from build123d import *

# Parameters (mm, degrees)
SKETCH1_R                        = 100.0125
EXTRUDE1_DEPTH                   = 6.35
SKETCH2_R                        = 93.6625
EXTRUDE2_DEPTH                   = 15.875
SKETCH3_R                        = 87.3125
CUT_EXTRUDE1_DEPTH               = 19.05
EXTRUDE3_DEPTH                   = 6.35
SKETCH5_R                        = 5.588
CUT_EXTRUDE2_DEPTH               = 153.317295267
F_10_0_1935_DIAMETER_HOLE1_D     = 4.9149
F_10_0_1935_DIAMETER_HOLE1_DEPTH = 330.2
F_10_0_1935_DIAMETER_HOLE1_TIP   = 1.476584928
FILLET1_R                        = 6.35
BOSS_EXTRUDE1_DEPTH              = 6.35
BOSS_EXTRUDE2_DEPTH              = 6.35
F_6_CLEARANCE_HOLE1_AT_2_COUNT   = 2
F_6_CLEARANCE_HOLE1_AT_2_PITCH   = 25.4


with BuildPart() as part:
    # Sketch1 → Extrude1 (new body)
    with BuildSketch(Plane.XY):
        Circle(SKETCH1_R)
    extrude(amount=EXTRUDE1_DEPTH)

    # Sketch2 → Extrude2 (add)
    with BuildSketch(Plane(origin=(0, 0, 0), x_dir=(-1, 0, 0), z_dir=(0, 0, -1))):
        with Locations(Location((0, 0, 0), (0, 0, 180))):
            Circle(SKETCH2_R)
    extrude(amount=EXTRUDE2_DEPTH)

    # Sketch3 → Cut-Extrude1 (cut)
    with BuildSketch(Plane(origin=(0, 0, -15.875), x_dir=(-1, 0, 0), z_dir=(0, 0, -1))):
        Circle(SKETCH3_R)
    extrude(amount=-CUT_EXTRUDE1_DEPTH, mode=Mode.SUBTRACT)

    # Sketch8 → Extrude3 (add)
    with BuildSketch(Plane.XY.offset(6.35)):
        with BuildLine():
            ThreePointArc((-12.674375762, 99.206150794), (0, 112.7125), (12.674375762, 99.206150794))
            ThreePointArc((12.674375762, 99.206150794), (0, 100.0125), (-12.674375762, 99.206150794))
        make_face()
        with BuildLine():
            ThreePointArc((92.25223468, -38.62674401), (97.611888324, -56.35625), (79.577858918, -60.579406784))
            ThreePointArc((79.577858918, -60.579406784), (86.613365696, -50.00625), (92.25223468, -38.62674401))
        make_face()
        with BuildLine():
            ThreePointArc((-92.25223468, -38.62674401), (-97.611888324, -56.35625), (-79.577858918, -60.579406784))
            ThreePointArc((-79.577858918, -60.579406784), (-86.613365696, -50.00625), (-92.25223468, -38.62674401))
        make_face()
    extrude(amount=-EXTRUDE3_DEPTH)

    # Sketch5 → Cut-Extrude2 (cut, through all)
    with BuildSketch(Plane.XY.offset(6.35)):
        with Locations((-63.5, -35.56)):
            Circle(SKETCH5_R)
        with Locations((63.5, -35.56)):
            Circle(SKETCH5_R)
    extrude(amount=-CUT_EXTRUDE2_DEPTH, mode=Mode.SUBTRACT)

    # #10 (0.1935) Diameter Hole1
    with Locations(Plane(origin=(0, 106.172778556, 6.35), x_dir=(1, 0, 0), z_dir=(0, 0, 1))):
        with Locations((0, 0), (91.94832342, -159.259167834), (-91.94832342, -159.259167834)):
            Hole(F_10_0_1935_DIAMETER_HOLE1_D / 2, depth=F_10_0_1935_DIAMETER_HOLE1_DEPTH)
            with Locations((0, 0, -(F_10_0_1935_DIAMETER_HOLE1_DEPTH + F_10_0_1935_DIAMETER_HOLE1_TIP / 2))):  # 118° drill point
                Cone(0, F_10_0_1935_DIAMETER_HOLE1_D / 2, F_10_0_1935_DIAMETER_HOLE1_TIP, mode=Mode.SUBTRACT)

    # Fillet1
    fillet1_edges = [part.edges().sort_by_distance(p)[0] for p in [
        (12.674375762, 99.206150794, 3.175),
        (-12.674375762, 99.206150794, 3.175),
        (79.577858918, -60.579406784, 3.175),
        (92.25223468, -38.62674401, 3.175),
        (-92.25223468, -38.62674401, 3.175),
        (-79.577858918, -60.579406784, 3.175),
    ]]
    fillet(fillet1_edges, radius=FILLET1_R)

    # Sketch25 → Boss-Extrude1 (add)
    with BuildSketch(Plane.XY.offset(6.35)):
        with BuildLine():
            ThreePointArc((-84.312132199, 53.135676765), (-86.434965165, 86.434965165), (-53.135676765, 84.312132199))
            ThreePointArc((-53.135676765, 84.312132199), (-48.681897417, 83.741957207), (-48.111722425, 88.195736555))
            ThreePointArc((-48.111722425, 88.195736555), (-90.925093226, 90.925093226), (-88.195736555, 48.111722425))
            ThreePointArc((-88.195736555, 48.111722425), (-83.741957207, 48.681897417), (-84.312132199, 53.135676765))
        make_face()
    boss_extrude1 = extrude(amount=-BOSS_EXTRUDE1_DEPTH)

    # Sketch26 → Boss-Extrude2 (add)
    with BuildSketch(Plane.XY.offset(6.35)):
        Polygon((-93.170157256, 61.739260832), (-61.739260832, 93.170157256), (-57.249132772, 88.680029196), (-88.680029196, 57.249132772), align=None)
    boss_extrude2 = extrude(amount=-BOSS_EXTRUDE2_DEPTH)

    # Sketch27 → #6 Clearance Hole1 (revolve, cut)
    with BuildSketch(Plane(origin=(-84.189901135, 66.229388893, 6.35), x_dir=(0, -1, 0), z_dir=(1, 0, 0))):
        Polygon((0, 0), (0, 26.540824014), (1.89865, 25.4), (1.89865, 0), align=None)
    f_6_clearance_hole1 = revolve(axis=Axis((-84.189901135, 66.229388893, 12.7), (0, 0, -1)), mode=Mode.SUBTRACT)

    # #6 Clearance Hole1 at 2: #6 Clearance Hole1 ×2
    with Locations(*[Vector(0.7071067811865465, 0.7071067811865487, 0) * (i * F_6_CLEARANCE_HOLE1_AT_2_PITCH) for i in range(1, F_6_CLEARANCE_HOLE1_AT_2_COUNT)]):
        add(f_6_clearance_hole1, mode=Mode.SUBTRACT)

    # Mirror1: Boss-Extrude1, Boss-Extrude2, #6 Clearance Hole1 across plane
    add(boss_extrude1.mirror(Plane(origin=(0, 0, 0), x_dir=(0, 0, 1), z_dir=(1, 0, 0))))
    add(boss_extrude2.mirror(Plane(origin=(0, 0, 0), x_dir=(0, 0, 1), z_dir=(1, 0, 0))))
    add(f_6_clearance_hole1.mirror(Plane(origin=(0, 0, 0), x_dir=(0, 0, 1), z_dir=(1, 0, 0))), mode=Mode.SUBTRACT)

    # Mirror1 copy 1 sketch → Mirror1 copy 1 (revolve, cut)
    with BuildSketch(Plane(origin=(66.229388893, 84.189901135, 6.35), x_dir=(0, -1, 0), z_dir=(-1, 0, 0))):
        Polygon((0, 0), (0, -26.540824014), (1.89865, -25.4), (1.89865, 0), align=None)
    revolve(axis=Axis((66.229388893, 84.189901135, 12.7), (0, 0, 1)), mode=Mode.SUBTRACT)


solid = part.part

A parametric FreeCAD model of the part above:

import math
import FreeCAD as App
import Part
import Sketcher
Q = App.Units.Quantity


def edges_at(feature, points):
    """Names of the edges that pass closest to the given points."""
    edges = feature.Shape.Edges
    near = lambda p: min(range(len(edges)), key=lambda i: edges[i].distToShape(Part.Vertex(*p))[0])
    return sorted({f"Edge{near(p) + 1}" for p in points})


def add_polygon(sketch, points):
    """Adds a closed chain of lines whose ends are joined by coincident constraints."""
    first, n = sketch.GeometryCount, len(points)
    for a, b in zip(points, points[1:] + points[:1]):
        sketch.addGeometry(Part.LineSegment(App.Vector(*a, 0), App.Vector(*b, 0)), False)
    for i in range(n):
        sketch.addConstraint(Sketcher.Constraint("Coincident", first + i, 2, first + (i + 1) % n, 1))

doc = App.newDocument("Part")
body = doc.addObject("PartDesign::Body", "Body")

sketch1 = body.newObject("Sketcher::SketchObject", "Sketch")
sketch1.AttachmentSupport = (doc.getObject("XY_Plane"), [""])
sketch1.MapMode = "FlatFace"
sketch1.addGeometry(Part.Circle(App.Vector(0, 0, 0), App.Vector(0, 0, 1), 100.0125), False)
sketch1.addConstraint(Sketcher.Constraint("Coincident", 0, 3, -1, 1))
sketch1.addConstraint(Sketcher.Constraint("Diameter", 0, Q("7.875 in")))
pad1 = body.newObject("PartDesign::Pad", "Pad")
pad1.Profile = sketch1
pad1.Length = Q("0.25 in")

sketch2 = body.newObject("Sketcher::SketchObject", "Sketch001")
sketch2.AttachmentSupport = (doc.getObject("XY_Plane"), [""])
sketch2.MapMode = "FlatFace"
sketch2.addGeometry(Part.Circle(App.Vector(0, 0, 0), App.Vector(0, 0, 1), 93.6625), False)
sketch2.addConstraint(Sketcher.Constraint("Coincident", 0, 3, -1, 1))
sketch2.addConstraint(Sketcher.Constraint("Diameter", 0, Q("7.375 in")))
pad2 = body.newObject("PartDesign::Pad", "Pad001")
pad2.Profile = sketch2
pad2.Length = Q("0.625 in")
pad2.Reversed = True

sketch3 = body.newObject("Sketcher::SketchObject", "Sketch002")
sketch3.AttachmentSupport = (doc.getObject("XY_Plane"), [""])
sketch3.MapMode = "FlatFace"
sketch3.AttachmentOffset = App.Placement(App.Vector(0, 0, -0.625 * 25.4), App.Rotation())
sketch3.addGeometry(Part.Circle(App.Vector(0, 0, 0), App.Vector(0, 0, 1), 87.3125), False)
sketch3.addConstraint(Sketcher.Constraint("Coincident", 0, 3, -1, 1))
sketch3.addConstraint(Sketcher.Constraint("Diameter", 0, Q("6.875 in")))
pocket1 = body.newObject("PartDesign::Pocket", "Pocket")
pocket1.Profile = sketch3
pocket1.Length = Q("0.75 in")
pocket1.Reversed = True

sketch4 = body.newObject("Sketcher::SketchObject", "Sketch003")
sketch4.AttachmentSupport = (doc.getObject("XY_Plane"), [""])
sketch4.MapMode = "FlatFace"
sketch4.AttachmentOffset = App.Placement(App.Vector(0, 0, 0.25 * 25.4), App.Rotation())
sketch4.addGeometry(Part.ArcOfCircle(Part.Circle(App.Vector(0, 100.0125, 0), App.Vector(0, 0, 1), 12.7), math.radians(-3.640276), math.radians(183.640276)), False)
sketch4.addGeometry(Part.ArcOfCircle(Part.Circle(App.Vector(0, 0, 0), App.Vector(0, 0, 1), 100.0125), math.radians(82.719448), math.radians(97.280552)), False)
sketch4.addGeometry(Part.ArcOfCircle(Part.Circle(App.Vector(86.613366, -50.00625, 0), App.Vector(0, 0, 1), 12.7), math.radians(-123.640276), math.radians(63.640276)), False)
sketch4.addGeometry(Part.ArcOfCircle(Part.Circle(App.Vector(0, 0, 0), App.Vector(0, 0, 1), 100.0125), math.radians(-37.280552), math.radians(-22.719448)), False)
sketch4.addGeometry(Part.ArcOfCircle(Part.Circle(App.Vector(-86.613366, -50.00625, 0), App.Vector(0, 0, 1), 12.7), math.radians(116.359724), math.radians(303.640276)), False)
sketch4.addGeometry(Part.ArcOfCircle(Part.Circle(App.Vector(0, 0, 0), App.Vector(0, 0, 1), 100.0125), math.radians(-157.280552), math.radians(-142.719448)), False)
sketch4.addConstraint(Sketcher.Constraint("Coincident", 0, 1, 1, 1))
sketch4.addConstraint(Sketcher.Constraint("Coincident", 1, 2, 0, 2))
sketch4.addConstraint(Sketcher.Constraint("Coincident", 2, 1, 3, 1))
sketch4.addConstraint(Sketcher.Constraint("Coincident", 3, 2, 2, 2))
sketch4.addConstraint(Sketcher.Constraint("Coincident", 4, 1, 5, 1))
sketch4.addConstraint(Sketcher.Constraint("Coincident", 5, 2, 4, 2))
sketch4.addConstraint(Sketcher.Constraint("Coincident", 1, 3, -1, 1))
sketch4.addConstraint(Sketcher.Constraint("Coincident", 3, 3, -1, 1))
sketch4.addConstraint(Sketcher.Constraint("Coincident", 5, 3, -1, 1))
sketch4.addConstraint(Sketcher.Constraint("Equal", 0, 2))
sketch4.addConstraint(Sketcher.Constraint("Equal", 1, 3))
sketch4.addConstraint(Sketcher.Constraint("Equal", 2, 4))
sketch4.addConstraint(Sketcher.Constraint("Equal", 3, 5))
sketch4.addConstraint(Sketcher.Constraint("Symmetric", 2, 3, 4, 3, -2))
sketch4.addConstraint(Sketcher.Constraint("PointOnObject", 0, 3, -2))
sketch4.addConstraint(Sketcher.Constraint("Radius", 0, Q("0.5 in")))
sketch4.addConstraint(Sketcher.Constraint("Radius", 1, Q("3.9375 in")))
sketch4.addConstraint(Sketcher.Constraint("DistanceY", -1, 1, 0, 3, Q("3.9375 in")))
sketch4.addConstraint(Sketcher.Constraint("DistanceY", 2, 3, -1, 1, Q("1.96875 in")))
sketch4.addConstraint(Sketcher.Constraint("DistanceX", -1, 1, 2, 1, Q("79.577859 mm")))
pad3 = body.newObject("PartDesign::Pad", "Pad002")
pad3.Profile = sketch4
pad3.Length = Q("0.25 in")
pad3.Reversed = True

sketch5 = body.newObject("Sketcher::SketchObject", "Sketch004")
sketch5.AttachmentSupport = (doc.getObject("XY_Plane"), [""])
sketch5.MapMode = "FlatFace"
sketch5.AttachmentOffset = App.Placement(App.Vector(0, 0, 0.25 * 25.4), App.Rotation())
sketch5.addGeometry(Part.Circle(App.Vector(-63.5, -35.56, 0), App.Vector(0, 0, 1), 5.588), False)
sketch5.addGeometry(Part.Circle(App.Vector(63.5, -35.56, 0), App.Vector(0, 0, 1), 5.588), False)
sketch5.addConstraint(Sketcher.Constraint("Equal", 0, 1))
sketch5.addConstraint(Sketcher.Constraint("Symmetric", 0, 3, 1, 3, -2))
sketch5.addConstraint(Sketcher.Constraint("Diameter", 0, Q("0.44 in")))
sketch5.addConstraint(Sketcher.Constraint("DistanceX", 0, 3, 1, 3, Q("5 in")))
sketch5.addConstraint(Sketcher.Constraint("DistanceY", 0, 3, -1, 1, Q("1.4 in")))
pocket2 = body.newObject("PartDesign::Pocket", "Pocket001")
pocket2.Profile = sketch5
pocket2.Type = "ThroughAll"

sketch6 = body.newObject("Sketcher::SketchObject", "Sketch005")
sketch6.AttachmentSupport = (doc.getObject("XY_Plane"), [""])
sketch6.MapMode = "FlatFace"
sketch6.AttachmentOffset = App.Placement(App.Vector(0, 0, 0.25 * 25.4), App.Rotation())
sketch6.addGeometry(Part.Circle(App.Vector(0, 106.172779, 0), App.Vector(0, 0, 1), 2.45745), False)
sketch6.addGeometry(Part.Circle(App.Vector(91.948323, -53.086389, 0), App.Vector(0, 0, 1), 2.45745), False)
sketch6.addGeometry(Part.Circle(App.Vector(-91.948323, -53.086389, 0), App.Vector(0, 0, 1), 2.45745), False)
sketch6.addConstraint(Sketcher.Constraint("Equal", 0, 1))
sketch6.addConstraint(Sketcher.Constraint("Equal", 1, 2))
sketch6.addConstraint(Sketcher.Constraint("Symmetric", 1, 3, 2, 3, -2))
sketch6.addConstraint(Sketcher.Constraint("PointOnObject", 0, 3, -2))
sketch6.addConstraint(Sketcher.Constraint("Diameter", 0, Q("0.1935 in")))
sketch6.addConstraint(Sketcher.Constraint("DistanceY", -1, 1, 0, 3, Q("106.172779 mm")))
sketch6.addConstraint(Sketcher.Constraint("DistanceY", 1, 3, -1, 1, Q("53.086389 mm")))
sketch6.addConstraint(Sketcher.Constraint("DistanceX", -1, 1, 1, 3, Q("91.948323 mm")))
doc.recompute()
hole = body.newObject("PartDesign::Hole", "Hole")
hole.Profile = sketch6
hole.ThreadType = "None"
hole.Diameter = Q("0.1935 in")
hole.DepthType = "Dimension"
hole.Depth = Q("13 in")
hole.DrillPoint = "Angled"
hole.DrillPointAngle = 118
doc.recompute()

fillet = body.newObject("PartDesign::Fillet", "Fillet")
fillet.Base = (hole, edges_at(hole, [
    (12.674, 99.206, 3.175),
    (-12.674, 99.206, 3.175),
    (79.578, -60.579, 3.175),
    (92.252, -38.627, 3.175),
    (-92.252, -38.627, 3.175),
    (-79.578, -60.579, 3.175),
]))
fillet.Radius = Q("0.25 in")

sketch7 = body.newObject("Sketcher::SketchObject", "Sketch006")
sketch7.AttachmentSupport = (doc.getObject("XY_Plane"), [""])
sketch7.MapMode = "FlatFace"
sketch7.AttachmentOffset = App.Placement(App.Vector(0, 0, 0.25 * 25.4), App.Rotation())
sketch7.addGeometry(Part.ArcOfCircle(Part.Circle(App.Vector(-70.719517, 70.719517, 0), App.Vector(0, 0, 1), 22.225), math.radians(37.704649), math.radians(232.295351)), False)
sketch7.addGeometry(Part.ArcOfCircle(Part.Circle(App.Vector(-50.6237, 86.253934, 0), App.Vector(0, 0, 1), 3.175), math.radians(-142.295351), math.radians(37.704649)), False)
sketch7.addGeometry(Part.ArcOfCircle(Part.Circle(App.Vector(-70.719517, 70.719517, 0), App.Vector(0, 0, 1), 28.575), math.radians(37.704649), math.radians(232.295351)), False)
sketch7.addGeometry(Part.ArcOfCircle(Part.Circle(App.Vector(-86.253934, 50.6237, 0), App.Vector(0, 0, 1), 3.175), math.radians(-127.704649), math.radians(52.295351)), False)
sketch7.addConstraint(Sketcher.Constraint("Tangent", 0, 1, 1, 1))
sketch7.addConstraint(Sketcher.Constraint("Tangent", 1, 2, 2, 1))
sketch7.addConstraint(Sketcher.Constraint("Tangent", 2, 2, 3, 1))
sketch7.addConstraint(Sketcher.Constraint("Tangent", 3, 2, 0, 2))
sketch7.addConstraint(Sketcher.Constraint("Coincident", 2, 3, 0, 3))
sketch7.addConstraint(Sketcher.Constraint("Radius", 0, Q("0.875 in")))
sketch7.addConstraint(Sketcher.Constraint("Radius", 1, Q("0.125 in")))
sketch7.addConstraint(Sketcher.Constraint("DistanceX", 1, 3, -1, 1, Q("50.6237 mm")))
sketch7.addConstraint(Sketcher.Constraint("DistanceY", -1, 1, 3, 3, Q("50.6237 mm")))
sketch7.addConstraint(Sketcher.Constraint("DistanceX", 0, 3, 0, 1, Q("17.58384 mm")))
sketch7.addConstraint(Sketcher.Constraint("DistanceX", 3, 3, 1, 2, Q("38.142212 mm")))
pad4 = body.newObject("PartDesign::Pad", "Pad003")
pad4.Profile = sketch7
pad4.Length = Q("0.25 in")
pad4.Reversed = True

sketch8 = body.newObject("Sketcher::SketchObject", "Sketch007")
sketch8.AttachmentSupport = (doc.getObject("XY_Plane"), [""])
sketch8.MapMode = "FlatFace"
sketch8.AttachmentOffset = App.Placement(App.Vector(0, 0, 0.25 * 25.4), App.Rotation())
add_polygon(sketch8, [(-61.739261, 93.170157), (-93.170157, 61.739261), (-88.680029, 57.249133), (-57.249133, 88.680029)])
sketch8.addConstraint(Sketcher.Constraint("Perpendicular", 0, 1))
sketch8.addConstraint(Sketcher.Constraint("Perpendicular", 1, 2))
sketch8.addConstraint(Sketcher.Constraint("Perpendicular", 2, 3))
sketch8.addConstraint(Sketcher.Constraint("Angle", 0, Q("-135 deg")))
sketch8.addConstraint(Sketcher.Constraint("Distance", 0, Q("1.75 in")))
sketch8.addConstraint(Sketcher.Constraint("Distance", 1, Q("0.25 in")))
sketch8.addConstraint(Sketcher.Constraint("DistanceY", -1, 1, 0, 2, Q("61.739261 mm")))
sketch8.addConstraint(Sketcher.Constraint("DistanceX", 1, 2, -1, 1, Q("88.680029 mm")))
pad5 = body.newObject("PartDesign::Pad", "Pad004")
pad5.Profile = sketch8
pad5.Length = Q("0.25 in")
pad5.Reversed = True

sketch9 = body.newObject("Sketcher::SketchObject", "Sketch008")
sketch9.AttachmentSupport = (doc.getObject("YZ_Plane"), [""])
sketch9.MapMode = "FlatFace"
sketch9.AttachmentOffset = App.Placement(App.Vector(0, 0, -84.189901), App.Rotation())
add_polygon(sketch9, [(66.229389, -20.190824), (66.229389, 6.35), (64.330739, 6.35), (64.330739, -19.05)])
sketch9.addGeometry(Part.LineSegment(App.Vector(66.229389, 6.35, 0), App.Vector(66.229389, -20.190824, 0)), True)
sketch9.addConstraint(Sketcher.Constraint("Vertical", 0))
sketch9.addConstraint(Sketcher.Constraint("Horizontal", 1))
sketch9.addConstraint(Sketcher.Constraint("Vertical", 2))
sketch9.addConstraint(Sketcher.Constraint("Vertical", 4))
sketch9.addConstraint(Sketcher.Constraint("Coincident", 4, 1, 0, 2))
sketch9.addConstraint(Sketcher.Constraint("Equal", 0, 4))
sketch9.addConstraint(Sketcher.Constraint("DistanceY", 2, 2, 2, 1, Q("1 in")))
sketch9.addConstraint(Sketcher.Constraint("Angle", 3, Q("-31 deg")))
sketch9.addConstraint(Sketcher.Constraint("DistanceY", -1, 1, 0, 2, Q("0.25 in")))
sketch9.addConstraint(Sketcher.Constraint("DistanceX", 1, 2, 1, 1, Q("1.89865 mm")))
sketch9.addConstraint(Sketcher.Constraint("DistanceX", -1, 1, 0, 2, Q("66.229389 mm")))
groove = body.newObject("PartDesign::Groove", "Groove")
groove.Profile = sketch9
groove.ReferenceAxis = (sketch9, ["Axis0"])
groove.Angle = 360
doc.recompute()

datumline = body.newObject("PartDesign::Line", "DatumLine")
datumline.Placement = App.Placement(App.Vector(0, 0, 0), App.Rotation(App.Vector(0, 0, 1), App.Vector(0.707106781, 0.707106781, 0)))
linearpattern = body.newObject("PartDesign::LinearPattern", "LinearPattern")
linearpattern.Originals = [groove]
linearpattern.Direction = (datumline, [""])
linearpattern.Mode = "offset"
linearpattern.Offset = Q("1 in")
linearpattern.Occurrences = 2
body.Tip = linearpattern
doc.recompute()

mirrored = body.newObject("PartDesign::Mirrored", "Mirrored")
mirrored.Originals = [pad4, pad5, groove]
mirrored.MirrorPlane = (doc.getObject("YZ_Plane"), [""])
body.Tip = mirrored

sketch10 = body.newObject("Sketcher::SketchObject", "Sketch009")
sketch10.AttachmentSupport = (doc.getObject("YZ_Plane"), [""])
sketch10.MapMode = "FlatFace"
sketch10.AttachmentOffset = App.Placement(App.Vector(0, 0, 66.229389), App.Rotation())
add_polygon(sketch10, [(84.189901, 6.35), (84.189901, -20.190824), (82.291251, -19.05), (82.291251, 6.35)])
sketch10.addGeometry(Part.LineSegment(App.Vector(84.189901, -20.190824, 0), App.Vector(84.189901, 6.35, 0)), True)
sketch10.addConstraint(Sketcher.Constraint("Vertical", 0))
sketch10.addConstraint(Sketcher.Constraint("Vertical", 2))
sketch10.addConstraint(Sketcher.Constraint("Horizontal", 3))
sketch10.addConstraint(Sketcher.Constraint("Vertical", 4))
sketch10.addConstraint(Sketcher.Constraint("Coincident", 4, 1, 0, 2))
sketch10.addConstraint(Sketcher.Constraint("Horizontal", 2, 2, 4, 2))
sketch10.addConstraint(Sketcher.Constraint("DistanceY", 2, 1, 2, 2, Q("1 in")))
sketch10.addConstraint(Sketcher.Constraint("Angle", 1, Q("149 deg")))
sketch10.addConstraint(Sketcher.Constraint("DistanceY", 1, 2, -1, 1, Q("0.75 in")))
sketch10.addConstraint(Sketcher.Constraint("DistanceX", 3, 1, 3, 2, Q("1.89865 mm")))
sketch10.addConstraint(Sketcher.Constraint("DistanceX", -1, 1, 0, 2, Q("84.189901 mm")))
groove2 = body.newObject("PartDesign::Groove", "Groove001")
groove2.Profile = sketch10
groove2.ReferenceAxis = (sketch10, ["Axis0"])
groove2.Angle = 360

doc.recompute()
